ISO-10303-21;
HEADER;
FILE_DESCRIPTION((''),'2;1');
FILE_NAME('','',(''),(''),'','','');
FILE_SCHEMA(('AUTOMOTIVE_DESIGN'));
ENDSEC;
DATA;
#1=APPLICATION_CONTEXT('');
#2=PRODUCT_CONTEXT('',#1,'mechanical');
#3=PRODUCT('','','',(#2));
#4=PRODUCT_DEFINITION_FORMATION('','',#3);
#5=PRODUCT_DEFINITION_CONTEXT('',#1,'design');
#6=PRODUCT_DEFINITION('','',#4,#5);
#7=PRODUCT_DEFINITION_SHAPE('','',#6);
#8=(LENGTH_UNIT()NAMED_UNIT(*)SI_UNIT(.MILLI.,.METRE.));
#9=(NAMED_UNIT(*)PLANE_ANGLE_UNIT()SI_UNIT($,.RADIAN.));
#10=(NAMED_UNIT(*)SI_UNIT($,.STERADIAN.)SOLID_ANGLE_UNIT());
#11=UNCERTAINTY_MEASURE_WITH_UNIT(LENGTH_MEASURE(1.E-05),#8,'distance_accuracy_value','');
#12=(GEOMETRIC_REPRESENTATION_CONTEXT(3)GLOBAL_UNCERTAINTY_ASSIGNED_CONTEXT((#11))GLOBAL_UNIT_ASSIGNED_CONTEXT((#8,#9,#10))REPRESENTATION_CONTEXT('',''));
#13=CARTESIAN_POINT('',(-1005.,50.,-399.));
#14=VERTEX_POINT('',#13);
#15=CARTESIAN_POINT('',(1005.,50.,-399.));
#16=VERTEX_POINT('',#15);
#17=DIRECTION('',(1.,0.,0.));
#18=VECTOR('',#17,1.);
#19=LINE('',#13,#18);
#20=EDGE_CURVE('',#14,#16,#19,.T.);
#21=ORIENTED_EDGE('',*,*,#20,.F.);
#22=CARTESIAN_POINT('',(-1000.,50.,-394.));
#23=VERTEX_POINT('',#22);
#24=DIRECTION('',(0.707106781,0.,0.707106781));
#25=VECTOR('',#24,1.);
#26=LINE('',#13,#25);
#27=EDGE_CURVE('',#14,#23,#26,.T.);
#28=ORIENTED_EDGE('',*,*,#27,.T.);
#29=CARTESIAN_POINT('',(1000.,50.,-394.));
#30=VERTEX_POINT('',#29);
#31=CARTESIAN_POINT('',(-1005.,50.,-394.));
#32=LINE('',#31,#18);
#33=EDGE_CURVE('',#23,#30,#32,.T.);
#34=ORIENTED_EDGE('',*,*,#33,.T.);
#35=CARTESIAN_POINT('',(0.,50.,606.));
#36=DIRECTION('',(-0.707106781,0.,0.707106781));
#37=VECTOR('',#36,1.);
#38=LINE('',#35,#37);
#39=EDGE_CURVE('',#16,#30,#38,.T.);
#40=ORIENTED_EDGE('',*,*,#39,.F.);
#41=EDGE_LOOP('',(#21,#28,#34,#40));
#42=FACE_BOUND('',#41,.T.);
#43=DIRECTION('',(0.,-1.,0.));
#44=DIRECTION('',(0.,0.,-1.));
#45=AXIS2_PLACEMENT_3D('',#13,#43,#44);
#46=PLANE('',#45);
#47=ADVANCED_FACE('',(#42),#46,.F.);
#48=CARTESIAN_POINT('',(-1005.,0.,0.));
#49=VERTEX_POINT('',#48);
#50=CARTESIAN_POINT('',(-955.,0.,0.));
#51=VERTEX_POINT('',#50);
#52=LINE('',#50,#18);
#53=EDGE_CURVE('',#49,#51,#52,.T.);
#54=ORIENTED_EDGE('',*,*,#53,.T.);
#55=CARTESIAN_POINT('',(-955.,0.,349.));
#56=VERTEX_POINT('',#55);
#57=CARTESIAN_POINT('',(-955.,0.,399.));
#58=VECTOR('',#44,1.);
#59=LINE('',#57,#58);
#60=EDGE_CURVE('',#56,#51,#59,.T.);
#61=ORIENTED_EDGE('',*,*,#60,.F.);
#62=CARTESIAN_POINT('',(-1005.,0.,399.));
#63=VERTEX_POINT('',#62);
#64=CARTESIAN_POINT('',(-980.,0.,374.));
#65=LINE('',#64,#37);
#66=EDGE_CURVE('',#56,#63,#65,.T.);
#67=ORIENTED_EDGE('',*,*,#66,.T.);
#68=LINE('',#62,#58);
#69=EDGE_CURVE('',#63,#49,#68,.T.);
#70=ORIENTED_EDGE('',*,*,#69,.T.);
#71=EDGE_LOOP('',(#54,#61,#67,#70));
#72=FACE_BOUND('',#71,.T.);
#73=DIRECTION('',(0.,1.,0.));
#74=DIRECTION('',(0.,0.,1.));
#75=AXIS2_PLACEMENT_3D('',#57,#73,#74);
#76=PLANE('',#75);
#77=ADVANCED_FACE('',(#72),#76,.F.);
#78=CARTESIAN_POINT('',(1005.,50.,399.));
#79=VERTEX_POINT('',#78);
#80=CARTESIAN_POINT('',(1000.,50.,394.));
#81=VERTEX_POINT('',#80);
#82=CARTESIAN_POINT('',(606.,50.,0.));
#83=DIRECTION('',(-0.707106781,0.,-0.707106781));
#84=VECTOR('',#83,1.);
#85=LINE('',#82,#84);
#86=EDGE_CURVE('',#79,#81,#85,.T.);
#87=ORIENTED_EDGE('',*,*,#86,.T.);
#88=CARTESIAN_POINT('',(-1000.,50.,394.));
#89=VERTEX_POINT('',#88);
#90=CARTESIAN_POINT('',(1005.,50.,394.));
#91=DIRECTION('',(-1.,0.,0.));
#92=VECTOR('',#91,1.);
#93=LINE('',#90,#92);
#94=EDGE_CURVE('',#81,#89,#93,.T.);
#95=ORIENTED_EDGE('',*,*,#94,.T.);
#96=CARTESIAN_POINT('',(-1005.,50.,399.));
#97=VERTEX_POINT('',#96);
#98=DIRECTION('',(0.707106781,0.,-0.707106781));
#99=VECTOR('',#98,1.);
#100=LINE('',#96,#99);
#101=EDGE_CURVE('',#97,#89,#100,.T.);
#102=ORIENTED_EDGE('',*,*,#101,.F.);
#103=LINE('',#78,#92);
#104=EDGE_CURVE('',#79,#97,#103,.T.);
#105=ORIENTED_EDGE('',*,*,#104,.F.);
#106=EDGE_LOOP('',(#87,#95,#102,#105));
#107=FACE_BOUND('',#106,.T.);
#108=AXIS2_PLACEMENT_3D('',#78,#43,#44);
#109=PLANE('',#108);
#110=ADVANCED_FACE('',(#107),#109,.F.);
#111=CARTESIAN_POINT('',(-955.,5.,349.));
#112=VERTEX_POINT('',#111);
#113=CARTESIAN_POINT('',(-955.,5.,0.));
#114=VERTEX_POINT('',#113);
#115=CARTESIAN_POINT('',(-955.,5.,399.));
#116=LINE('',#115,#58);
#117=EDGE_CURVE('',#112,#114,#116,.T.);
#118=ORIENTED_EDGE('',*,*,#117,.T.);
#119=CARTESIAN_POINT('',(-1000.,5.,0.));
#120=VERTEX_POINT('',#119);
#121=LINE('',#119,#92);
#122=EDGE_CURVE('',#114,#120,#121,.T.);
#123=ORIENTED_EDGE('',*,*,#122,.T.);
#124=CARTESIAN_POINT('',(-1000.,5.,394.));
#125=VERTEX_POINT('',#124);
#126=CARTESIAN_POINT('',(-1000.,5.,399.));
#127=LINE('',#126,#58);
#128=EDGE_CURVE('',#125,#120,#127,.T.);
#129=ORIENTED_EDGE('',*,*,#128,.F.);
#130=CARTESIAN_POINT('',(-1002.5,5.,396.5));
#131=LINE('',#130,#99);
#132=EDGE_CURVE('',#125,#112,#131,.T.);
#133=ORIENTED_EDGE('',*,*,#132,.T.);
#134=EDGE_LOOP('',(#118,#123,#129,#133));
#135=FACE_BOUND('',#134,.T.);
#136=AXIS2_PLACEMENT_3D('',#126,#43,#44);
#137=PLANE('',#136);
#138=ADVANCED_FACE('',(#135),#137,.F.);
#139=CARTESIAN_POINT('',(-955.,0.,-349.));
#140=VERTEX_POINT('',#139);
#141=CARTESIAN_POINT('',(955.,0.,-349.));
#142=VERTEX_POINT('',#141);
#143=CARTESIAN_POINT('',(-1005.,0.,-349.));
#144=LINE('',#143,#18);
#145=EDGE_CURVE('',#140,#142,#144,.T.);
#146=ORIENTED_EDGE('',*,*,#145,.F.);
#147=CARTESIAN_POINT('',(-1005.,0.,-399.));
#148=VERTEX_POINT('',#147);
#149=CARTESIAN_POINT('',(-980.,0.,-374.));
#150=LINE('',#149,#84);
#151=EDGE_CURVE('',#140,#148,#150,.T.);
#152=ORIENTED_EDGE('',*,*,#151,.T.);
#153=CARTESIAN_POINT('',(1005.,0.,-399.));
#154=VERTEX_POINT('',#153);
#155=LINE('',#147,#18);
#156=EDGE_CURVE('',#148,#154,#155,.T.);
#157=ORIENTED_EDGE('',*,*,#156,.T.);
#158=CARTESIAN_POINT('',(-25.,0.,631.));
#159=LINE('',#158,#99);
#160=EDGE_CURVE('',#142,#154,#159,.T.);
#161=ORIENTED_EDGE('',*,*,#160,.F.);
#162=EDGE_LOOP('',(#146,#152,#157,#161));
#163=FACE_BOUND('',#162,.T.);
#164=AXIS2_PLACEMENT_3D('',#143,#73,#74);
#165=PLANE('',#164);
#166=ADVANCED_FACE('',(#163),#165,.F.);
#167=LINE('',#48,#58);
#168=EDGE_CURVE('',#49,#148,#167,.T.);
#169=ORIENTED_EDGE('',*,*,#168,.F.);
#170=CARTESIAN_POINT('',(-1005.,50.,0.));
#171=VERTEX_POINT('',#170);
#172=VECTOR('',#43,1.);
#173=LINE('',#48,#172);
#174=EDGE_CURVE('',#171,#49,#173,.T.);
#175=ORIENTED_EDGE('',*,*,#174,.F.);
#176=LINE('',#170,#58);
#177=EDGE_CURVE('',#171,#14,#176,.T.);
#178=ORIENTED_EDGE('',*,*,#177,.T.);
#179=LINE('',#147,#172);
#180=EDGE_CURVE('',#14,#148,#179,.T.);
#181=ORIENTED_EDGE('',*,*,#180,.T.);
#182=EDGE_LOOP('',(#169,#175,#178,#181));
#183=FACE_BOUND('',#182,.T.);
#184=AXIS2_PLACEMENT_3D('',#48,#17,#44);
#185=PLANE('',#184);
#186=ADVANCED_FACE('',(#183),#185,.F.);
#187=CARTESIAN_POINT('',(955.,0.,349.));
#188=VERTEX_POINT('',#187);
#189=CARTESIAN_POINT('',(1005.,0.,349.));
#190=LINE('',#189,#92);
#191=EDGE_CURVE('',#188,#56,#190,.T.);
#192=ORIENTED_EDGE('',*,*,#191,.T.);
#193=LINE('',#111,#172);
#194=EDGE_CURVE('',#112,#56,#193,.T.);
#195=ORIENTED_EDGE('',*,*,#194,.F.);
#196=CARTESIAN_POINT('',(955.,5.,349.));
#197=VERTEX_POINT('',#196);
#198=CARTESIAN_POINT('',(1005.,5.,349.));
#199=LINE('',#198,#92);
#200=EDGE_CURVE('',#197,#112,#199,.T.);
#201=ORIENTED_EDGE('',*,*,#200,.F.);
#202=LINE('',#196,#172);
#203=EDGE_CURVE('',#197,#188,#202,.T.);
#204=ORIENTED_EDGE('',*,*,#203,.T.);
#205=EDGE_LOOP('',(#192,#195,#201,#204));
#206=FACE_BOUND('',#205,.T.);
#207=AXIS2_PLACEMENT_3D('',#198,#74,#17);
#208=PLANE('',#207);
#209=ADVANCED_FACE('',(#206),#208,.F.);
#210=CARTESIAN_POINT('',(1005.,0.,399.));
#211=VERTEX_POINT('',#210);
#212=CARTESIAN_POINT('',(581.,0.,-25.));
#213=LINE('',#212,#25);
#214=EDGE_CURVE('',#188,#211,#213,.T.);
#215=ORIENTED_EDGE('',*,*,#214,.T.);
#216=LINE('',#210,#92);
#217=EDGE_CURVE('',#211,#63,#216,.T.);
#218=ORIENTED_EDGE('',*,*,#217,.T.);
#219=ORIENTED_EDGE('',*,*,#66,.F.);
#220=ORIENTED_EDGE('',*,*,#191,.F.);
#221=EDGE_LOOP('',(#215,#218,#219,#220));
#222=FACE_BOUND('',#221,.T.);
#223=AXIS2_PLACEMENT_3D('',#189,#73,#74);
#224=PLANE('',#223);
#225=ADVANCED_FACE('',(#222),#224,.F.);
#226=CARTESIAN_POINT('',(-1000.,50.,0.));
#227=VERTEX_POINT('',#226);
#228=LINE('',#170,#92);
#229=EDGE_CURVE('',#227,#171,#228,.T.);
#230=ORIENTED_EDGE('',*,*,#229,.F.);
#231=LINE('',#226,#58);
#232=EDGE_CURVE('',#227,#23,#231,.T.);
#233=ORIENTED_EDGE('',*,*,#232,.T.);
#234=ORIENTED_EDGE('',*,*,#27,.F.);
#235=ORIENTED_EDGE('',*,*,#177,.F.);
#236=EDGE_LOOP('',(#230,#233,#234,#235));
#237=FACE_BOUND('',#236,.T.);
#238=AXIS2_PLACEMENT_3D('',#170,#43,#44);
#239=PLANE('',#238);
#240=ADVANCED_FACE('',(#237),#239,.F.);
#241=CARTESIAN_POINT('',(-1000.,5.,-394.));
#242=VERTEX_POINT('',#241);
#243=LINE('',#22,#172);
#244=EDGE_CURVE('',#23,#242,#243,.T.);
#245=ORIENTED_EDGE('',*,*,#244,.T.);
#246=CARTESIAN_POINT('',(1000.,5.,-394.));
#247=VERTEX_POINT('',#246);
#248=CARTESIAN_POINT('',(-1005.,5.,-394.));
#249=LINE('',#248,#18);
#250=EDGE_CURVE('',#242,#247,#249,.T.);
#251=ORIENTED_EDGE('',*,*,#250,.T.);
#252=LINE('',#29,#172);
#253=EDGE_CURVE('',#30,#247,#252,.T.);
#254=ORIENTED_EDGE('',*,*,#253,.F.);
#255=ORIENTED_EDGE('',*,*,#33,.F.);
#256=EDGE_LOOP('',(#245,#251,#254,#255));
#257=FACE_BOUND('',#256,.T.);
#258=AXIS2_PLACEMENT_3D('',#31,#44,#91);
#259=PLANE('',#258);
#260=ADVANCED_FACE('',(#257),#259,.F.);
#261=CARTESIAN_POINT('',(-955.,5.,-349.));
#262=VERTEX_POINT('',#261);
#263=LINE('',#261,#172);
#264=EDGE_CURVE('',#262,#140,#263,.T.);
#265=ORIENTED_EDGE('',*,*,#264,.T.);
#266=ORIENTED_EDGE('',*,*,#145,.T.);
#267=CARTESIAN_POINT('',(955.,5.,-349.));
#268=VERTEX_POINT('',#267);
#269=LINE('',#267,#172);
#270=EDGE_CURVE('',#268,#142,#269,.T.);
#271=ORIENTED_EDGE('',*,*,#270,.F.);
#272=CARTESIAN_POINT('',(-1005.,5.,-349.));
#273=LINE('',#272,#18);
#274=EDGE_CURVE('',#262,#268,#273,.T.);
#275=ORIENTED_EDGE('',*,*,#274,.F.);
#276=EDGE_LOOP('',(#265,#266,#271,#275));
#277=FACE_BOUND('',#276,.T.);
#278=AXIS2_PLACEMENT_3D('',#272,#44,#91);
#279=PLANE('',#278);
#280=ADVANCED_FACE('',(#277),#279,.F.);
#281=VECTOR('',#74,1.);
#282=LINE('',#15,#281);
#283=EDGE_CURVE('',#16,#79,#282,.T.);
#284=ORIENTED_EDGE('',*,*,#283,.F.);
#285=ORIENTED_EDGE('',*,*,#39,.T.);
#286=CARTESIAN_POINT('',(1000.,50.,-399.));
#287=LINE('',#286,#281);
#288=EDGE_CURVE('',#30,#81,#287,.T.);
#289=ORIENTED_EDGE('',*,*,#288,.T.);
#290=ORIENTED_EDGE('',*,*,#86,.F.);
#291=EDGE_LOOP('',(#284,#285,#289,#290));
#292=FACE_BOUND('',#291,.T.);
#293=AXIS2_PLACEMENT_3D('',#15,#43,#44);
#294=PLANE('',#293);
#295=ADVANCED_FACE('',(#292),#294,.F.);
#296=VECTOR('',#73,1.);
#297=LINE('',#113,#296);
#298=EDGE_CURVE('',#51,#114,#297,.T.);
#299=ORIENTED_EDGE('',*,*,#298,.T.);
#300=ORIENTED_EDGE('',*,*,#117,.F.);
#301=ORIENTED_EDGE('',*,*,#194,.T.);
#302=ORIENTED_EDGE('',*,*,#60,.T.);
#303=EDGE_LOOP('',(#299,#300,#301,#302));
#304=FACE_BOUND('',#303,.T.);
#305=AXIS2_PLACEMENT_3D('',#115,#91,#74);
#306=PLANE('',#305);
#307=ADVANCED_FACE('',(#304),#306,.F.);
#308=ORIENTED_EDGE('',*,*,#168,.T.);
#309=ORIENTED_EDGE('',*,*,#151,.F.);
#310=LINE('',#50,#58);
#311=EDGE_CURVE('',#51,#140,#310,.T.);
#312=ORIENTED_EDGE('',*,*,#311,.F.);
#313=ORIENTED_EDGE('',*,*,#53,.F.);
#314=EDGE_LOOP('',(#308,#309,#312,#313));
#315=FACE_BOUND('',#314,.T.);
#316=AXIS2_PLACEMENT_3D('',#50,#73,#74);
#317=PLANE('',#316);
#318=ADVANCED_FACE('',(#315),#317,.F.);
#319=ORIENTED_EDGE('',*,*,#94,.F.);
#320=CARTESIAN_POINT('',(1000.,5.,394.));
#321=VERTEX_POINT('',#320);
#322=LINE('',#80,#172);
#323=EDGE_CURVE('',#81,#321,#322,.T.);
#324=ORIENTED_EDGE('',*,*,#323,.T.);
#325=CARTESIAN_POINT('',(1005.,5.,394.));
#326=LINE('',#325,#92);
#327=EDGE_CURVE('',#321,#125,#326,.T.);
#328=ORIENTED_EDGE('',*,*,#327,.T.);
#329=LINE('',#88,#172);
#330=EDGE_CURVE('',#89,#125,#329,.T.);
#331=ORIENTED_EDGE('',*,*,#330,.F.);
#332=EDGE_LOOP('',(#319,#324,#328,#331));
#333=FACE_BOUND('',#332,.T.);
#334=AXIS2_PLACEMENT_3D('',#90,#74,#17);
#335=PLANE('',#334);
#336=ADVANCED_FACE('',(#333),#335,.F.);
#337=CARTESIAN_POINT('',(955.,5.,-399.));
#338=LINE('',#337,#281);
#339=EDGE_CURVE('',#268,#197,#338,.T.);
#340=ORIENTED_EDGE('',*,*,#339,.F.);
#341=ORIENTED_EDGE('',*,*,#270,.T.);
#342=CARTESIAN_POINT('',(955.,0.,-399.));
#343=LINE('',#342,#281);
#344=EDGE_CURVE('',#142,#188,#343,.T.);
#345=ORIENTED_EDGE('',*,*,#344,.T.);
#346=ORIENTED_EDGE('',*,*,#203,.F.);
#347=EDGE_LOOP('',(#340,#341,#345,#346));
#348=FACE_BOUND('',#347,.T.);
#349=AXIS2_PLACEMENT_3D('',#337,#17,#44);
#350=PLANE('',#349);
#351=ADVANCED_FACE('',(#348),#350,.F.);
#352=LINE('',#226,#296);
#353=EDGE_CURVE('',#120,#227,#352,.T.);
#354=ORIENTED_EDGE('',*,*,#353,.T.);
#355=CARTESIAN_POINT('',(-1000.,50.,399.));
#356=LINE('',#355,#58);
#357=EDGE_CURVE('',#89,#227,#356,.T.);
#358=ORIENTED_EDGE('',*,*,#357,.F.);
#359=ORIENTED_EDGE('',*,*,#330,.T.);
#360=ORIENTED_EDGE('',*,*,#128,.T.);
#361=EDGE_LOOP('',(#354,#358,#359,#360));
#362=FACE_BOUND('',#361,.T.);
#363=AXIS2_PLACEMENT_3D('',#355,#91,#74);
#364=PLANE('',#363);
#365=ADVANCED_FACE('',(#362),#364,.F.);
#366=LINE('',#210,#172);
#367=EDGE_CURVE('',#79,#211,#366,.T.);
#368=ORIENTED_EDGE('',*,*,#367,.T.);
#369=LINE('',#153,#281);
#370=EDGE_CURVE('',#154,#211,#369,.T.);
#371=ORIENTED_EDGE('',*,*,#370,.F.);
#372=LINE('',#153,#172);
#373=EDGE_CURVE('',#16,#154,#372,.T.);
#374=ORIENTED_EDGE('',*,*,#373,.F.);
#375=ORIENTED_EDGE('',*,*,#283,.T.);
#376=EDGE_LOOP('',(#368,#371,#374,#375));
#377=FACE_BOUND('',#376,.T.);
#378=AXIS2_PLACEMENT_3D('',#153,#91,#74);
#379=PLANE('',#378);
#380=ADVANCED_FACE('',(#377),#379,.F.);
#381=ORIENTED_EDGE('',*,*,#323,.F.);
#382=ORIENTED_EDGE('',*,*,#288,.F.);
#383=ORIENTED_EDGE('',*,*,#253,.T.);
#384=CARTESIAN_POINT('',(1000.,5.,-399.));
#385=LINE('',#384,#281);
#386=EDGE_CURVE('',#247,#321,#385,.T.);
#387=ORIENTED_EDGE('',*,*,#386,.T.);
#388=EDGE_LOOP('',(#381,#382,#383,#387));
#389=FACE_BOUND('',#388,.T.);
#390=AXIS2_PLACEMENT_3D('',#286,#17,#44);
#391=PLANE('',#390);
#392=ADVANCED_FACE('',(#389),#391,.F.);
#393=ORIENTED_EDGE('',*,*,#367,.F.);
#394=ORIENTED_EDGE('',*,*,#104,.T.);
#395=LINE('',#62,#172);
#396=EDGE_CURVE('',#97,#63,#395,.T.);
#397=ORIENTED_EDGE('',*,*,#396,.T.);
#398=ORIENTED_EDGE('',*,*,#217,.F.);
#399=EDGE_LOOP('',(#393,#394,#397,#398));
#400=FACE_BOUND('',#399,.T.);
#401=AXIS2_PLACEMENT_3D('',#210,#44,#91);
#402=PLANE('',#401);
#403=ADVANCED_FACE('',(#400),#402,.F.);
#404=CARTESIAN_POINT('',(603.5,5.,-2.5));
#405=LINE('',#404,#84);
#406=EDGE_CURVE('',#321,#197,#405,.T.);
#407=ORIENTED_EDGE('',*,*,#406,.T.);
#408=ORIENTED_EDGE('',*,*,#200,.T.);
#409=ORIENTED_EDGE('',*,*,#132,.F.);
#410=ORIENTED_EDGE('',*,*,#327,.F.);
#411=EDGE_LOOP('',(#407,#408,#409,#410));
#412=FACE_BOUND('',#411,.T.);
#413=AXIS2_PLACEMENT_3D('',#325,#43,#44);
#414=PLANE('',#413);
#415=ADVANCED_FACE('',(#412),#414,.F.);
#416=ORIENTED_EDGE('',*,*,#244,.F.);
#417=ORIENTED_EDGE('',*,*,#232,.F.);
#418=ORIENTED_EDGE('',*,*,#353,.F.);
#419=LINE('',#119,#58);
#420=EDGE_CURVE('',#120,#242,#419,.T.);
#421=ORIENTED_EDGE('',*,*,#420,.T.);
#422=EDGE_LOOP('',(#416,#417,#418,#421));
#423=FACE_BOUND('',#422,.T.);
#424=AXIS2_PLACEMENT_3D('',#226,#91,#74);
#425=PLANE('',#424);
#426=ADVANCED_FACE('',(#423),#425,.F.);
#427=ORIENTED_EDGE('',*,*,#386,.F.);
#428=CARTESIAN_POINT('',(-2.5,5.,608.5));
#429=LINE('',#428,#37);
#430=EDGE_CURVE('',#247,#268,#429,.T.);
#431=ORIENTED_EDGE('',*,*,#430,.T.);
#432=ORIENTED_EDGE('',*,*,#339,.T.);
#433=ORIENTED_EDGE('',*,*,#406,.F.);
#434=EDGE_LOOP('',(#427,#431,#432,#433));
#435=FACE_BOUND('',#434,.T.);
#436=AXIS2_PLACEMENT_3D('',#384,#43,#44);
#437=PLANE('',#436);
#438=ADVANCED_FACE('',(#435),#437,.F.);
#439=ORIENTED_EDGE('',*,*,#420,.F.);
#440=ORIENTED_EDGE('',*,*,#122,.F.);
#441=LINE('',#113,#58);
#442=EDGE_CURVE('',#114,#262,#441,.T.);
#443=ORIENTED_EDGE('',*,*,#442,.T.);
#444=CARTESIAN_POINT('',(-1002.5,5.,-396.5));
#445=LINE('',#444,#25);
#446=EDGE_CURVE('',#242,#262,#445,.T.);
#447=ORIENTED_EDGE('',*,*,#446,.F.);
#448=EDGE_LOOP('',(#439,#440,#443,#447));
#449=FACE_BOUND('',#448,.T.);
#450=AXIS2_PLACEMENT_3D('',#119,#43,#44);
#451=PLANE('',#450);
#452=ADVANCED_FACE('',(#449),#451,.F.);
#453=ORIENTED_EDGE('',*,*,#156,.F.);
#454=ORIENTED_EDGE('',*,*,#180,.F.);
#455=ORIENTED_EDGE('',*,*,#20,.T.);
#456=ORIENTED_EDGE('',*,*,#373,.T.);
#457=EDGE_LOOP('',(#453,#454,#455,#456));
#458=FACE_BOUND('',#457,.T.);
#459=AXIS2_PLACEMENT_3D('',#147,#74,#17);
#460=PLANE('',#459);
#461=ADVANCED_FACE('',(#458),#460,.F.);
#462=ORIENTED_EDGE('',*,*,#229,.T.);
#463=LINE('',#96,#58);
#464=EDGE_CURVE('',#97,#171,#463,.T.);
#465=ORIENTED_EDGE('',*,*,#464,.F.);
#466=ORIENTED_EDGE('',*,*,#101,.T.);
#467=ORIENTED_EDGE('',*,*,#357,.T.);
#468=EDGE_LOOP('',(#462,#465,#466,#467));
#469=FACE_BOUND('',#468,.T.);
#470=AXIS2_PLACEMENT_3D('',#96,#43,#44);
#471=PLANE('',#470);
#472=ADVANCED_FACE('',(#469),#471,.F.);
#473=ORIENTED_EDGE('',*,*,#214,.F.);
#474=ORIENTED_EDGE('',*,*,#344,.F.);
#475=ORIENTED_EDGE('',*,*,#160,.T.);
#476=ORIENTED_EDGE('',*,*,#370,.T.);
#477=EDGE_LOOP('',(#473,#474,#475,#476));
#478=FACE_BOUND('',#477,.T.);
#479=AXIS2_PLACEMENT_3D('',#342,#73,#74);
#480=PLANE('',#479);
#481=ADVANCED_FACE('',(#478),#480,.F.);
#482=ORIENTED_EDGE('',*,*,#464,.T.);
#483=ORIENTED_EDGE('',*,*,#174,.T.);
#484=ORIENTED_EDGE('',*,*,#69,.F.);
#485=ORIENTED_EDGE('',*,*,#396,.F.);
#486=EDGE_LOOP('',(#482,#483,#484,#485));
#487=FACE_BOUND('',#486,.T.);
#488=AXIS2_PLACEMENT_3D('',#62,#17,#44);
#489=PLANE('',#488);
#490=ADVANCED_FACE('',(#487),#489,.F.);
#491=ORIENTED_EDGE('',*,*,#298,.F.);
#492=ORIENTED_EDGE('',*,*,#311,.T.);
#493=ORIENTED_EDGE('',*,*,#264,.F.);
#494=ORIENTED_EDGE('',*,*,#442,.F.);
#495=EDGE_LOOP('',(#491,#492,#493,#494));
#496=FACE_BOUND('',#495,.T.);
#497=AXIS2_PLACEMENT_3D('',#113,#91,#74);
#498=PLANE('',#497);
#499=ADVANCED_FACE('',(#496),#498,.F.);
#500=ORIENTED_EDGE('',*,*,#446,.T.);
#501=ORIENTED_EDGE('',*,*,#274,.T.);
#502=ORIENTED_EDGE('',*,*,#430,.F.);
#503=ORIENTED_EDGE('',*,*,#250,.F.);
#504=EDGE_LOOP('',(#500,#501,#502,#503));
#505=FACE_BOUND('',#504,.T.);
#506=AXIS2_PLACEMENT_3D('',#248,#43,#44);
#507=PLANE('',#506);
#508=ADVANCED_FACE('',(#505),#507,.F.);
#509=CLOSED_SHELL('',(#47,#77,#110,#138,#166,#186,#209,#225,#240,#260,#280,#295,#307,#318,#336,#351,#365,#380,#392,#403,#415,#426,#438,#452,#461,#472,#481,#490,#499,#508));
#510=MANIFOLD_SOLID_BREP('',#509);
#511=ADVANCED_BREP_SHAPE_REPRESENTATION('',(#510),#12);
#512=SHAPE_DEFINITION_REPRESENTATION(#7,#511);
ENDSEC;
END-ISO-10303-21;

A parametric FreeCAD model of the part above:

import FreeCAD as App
import Part
import Sketcher

V = App.Vector
Q = App.Units.Quantity


def add_polygon(sketch, points):
    """Adds a closed chain of lines whose ends are joined by coincident constraints."""
    first, n = sketch.GeometryCount, len(points)
    for a, b in zip(points, points[1:] + points[:1]):
        sketch.addGeometry(Part.LineSegment(App.Vector(*a, 0), App.Vector(*b, 0)), False)
    for i in range(n):
        sketch.addConstraint(Sketcher.Constraint("Coincident", first + i, 2, first + (i + 1) % n, 1))

doc = App.newDocument("Part")
body = doc.addObject("PartDesign::Body", "Body")

# Sketch on XY plane
sketch1 = body.newObject("Sketcher::SketchObject", "Sketch")
sketch1.AttachmentSupport = (doc.getObject("XY_Plane"), [""])
sketch1.MapMode = "FlatFace"
add_polygon(sketch1, [(-1005, 0), (-955, 0), (-955, 5), (-1000, 5), (-1000, 50), (-1005, 50)])  # lines 0-5
sketch1.addConstraint(Sketcher.Constraint("Horizontal", 0))
sketch1.addConstraint(Sketcher.Constraint("Vertical", 1))
sketch1.addConstraint(Sketcher.Constraint("Horizontal", 2))
sketch1.addConstraint(Sketcher.Constraint("Vertical", 3))
sketch1.addConstraint(Sketcher.Constraint("Horizontal", 4))
sketch1.addConstraint(Sketcher.Constraint("Vertical", 5))
sketch1.addConstraint(Sketcher.Constraint("PointOnObject", 0, 2, -1))
sketch1.addConstraint(Sketcher.Constraint("Equal", 4, 1))
sketch1.addConstraint(Sketcher.Constraint("Equal", 2, 3))
sketch1.addConstraint(Sketcher.Constraint("DistanceX", 0, 1, 0, 2, Q("50 mm")))
sketch1.addConstraint(Sketcher.Constraint("DistanceX", 2, 2, 2, 1, Q("45 mm")))
sketch1.addConstraint(Sketcher.Constraint("DistanceX", 0, 2, -1, 1, Q("955 mm")))

# Sketch on XZ plane
sketch2 = body.newObject("Sketcher::SketchObject", "Sketch001")
sketch2.AttachmentSupport = (doc.getObject("XZ_Plane"), [""])
sketch2.MapMode = "FlatFace"
add_polygon(sketch2, [(-1005, 399), (1005, 399), (1005, -399), (-1005, -399)])  # lines 0-3
sketch2.addConstraint(Sketcher.Constraint("Horizontal", 0))
sketch2.addConstraint(Sketcher.Constraint("Vertical", 1))
sketch2.addConstraint(Sketcher.Constraint("Horizontal", 2))
sketch2.addConstraint(Sketcher.Constraint("Vertical", 3))
sketch2.addConstraint(Sketcher.Constraint("Symmetric", 0, 2, 2, 2, -1, 1))
sketch2.addConstraint(Sketcher.Constraint("DistanceX", 0, 1, 0, 2, Q("2010 mm")))
sketch2.addConstraint(Sketcher.Constraint("DistanceY", 1, 2, 1, 1, Q("798 mm")))
doc.recompute()

additivepipe = body.newObject("PartDesign::AdditivePipe", "AdditivePipe")
additivepipe.Profile = sketch1
additivepipe.Spine = (sketch2, ["Edge1", "Edge2", "Edge3", "Edge4"])
additivepipe.Transition = "Right corner"

doc.recompute()
